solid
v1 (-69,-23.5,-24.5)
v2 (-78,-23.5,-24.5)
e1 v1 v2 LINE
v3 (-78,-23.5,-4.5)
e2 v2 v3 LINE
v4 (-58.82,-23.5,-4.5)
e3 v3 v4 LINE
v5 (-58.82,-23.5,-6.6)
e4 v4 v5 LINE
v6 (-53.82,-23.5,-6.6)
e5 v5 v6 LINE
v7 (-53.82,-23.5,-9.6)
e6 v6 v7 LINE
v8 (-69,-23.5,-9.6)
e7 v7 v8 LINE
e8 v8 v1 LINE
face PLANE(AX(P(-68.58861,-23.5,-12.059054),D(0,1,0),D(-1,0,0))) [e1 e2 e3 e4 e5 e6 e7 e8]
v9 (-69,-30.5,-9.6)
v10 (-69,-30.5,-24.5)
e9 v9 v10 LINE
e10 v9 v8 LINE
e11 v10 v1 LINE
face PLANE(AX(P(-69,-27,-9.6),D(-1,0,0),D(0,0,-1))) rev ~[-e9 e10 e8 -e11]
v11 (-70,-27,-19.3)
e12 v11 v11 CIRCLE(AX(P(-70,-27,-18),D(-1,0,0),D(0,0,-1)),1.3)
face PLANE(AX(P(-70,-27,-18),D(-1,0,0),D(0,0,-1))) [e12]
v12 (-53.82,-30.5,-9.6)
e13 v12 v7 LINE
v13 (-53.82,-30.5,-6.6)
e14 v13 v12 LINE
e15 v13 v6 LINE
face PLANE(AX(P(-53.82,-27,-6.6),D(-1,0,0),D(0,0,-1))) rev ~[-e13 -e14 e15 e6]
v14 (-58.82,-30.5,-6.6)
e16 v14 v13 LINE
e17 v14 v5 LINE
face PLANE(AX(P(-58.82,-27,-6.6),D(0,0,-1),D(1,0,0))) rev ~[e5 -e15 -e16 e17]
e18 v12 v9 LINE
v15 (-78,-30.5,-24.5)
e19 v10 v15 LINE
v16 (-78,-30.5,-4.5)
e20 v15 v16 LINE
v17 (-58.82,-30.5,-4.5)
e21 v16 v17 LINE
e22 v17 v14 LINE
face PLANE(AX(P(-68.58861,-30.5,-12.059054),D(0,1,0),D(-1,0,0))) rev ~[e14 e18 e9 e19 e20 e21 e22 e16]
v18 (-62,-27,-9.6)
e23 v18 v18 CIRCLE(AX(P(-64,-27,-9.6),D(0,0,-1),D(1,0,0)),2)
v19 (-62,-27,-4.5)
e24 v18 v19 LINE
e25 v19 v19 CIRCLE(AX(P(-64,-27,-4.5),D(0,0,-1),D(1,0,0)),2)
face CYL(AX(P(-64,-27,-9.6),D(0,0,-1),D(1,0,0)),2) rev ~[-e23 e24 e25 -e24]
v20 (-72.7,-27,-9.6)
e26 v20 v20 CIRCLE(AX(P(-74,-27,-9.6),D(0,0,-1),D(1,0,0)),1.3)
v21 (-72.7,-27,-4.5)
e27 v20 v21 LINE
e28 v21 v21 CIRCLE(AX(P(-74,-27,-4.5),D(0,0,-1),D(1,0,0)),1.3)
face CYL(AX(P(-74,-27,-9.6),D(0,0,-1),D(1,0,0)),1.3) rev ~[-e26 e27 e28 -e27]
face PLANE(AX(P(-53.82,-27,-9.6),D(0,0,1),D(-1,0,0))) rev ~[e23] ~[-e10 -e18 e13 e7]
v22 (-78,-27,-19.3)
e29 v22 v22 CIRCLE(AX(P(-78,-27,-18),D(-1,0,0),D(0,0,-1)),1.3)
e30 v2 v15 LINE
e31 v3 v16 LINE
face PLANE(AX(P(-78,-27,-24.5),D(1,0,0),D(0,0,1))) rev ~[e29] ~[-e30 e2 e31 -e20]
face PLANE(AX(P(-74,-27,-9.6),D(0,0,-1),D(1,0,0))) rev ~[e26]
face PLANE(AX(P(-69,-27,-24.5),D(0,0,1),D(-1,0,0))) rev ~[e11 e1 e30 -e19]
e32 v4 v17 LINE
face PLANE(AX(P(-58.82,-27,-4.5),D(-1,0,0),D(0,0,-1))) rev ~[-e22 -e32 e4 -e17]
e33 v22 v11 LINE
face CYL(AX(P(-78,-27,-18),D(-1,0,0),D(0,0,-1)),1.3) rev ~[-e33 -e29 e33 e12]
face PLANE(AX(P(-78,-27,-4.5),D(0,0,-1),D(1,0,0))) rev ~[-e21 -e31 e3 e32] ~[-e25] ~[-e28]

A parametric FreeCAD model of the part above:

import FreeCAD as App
import Part
import Sketcher

V = App.Vector
Q = App.Units.Quantity


def add_polygon(sketch, points):
    """Adds a closed chain of lines whose ends are joined by coincident constraints."""
    first, n = sketch.GeometryCount, len(points)
    for a, b in zip(points, points[1:] + points[:1]):
        sketch.addGeometry(Part.LineSegment(App.Vector(*a, 0), App.Vector(*b, 0)), False)
    for i in range(n):
        sketch.addConstraint(Sketcher.Constraint("Coincident", first + i, 2, first + (i + 1) % n, 1))

doc = App.newDocument("Part")
body = doc.addObject("PartDesign::Body", "Body")

sketch1 = body.newObject("Sketcher::SketchObject", "Sketch")
sketch1.AttachmentSupport = (doc.getObject("XZ_Plane"), [""])
sketch1.MapMode = "FlatFace"
add_polygon(sketch1, [(-58.8, -6.6), (-58.8, -4.5), (-78, -4.5), (-78, -24.5), (-69, -24.5), (-69, -9.6), (-53.8, -9.6), (-53.8, -6.6)])
sketch1.addConstraint([
    Sketcher.Constraint("Vertical", 0),
    Sketcher.Constraint("Horizontal", 1),
    Sketcher.Constraint("Vertical", 2),
    Sketcher.Constraint("Horizontal", 3),
    Sketcher.Constraint("Vertical", 4),
    Sketcher.Constraint("Horizontal", 5),
    Sketcher.Constraint("Vertical", 6),
    Sketcher.Constraint("Horizontal", 7),
    Sketcher.Constraint("DistanceX", 3, 1, 3, 2, Q("9 mm")),
    Sketcher.Constraint("DistanceX", 7, 2, 7, 1, Q("5 mm")),
    Sketcher.Constraint("DistanceY", 2, 2, 2, 1, Q("20 mm")),
    Sketcher.Constraint("DistanceY", 6, 1, 6, 2, Q("3 mm")),
    Sketcher.Constraint("DistanceY", 0, 1, 0, 2, Q("2.1 mm")),
    Sketcher.Constraint("DistanceX", 1, 2, -1, 1, Q("78 mm")),
    Sketcher.Constraint("DistanceX", 1, 2, 1, 1, Q("19.18 mm")),
    Sketcher.Constraint("DistanceY", 0, 2, -1, 1, Q("4.5 mm")),
])
pad1 = body.newObject("PartDesign::Pad", "Pad")
pad1.Profile = sketch1
pad1.Type = "TwoLengths"
pad1.Length = 3.5
pad1.Length2 = 3.5

sketch2 = body.newObject("Sketcher::SketchObject", "Sketch001")
sketch2.AttachmentSupport = (doc.getObject("XY_Plane"), [""])
sketch2.MapMode = "FlatFace"
sketch2.AttachmentOffset = App.Placement(V(0, 0, -9.6), App.Rotation())
sketch2.addGeometry([
    Part.Circle(V(-64, 0, 0), V(0, 0, 1), 2),
    Part.Circle(V(-74, 0, 0), V(0, 0, 1), 1.3),
], False)
sketch2.addConstraint([
    Sketcher.Constraint("PointOnObject", 0, 3, -1),
    Sketcher.Constraint("PointOnObject", 1, 3, -1),
    Sketcher.Constraint("Diameter", 0, Q("4 mm")),
    Sketcher.Constraint("Diameter", 1, Q("2.6 mm")),
    Sketcher.Constraint("DistanceX", 0, 3, -1, 1, Q("64 mm")),
    Sketcher.Constraint("DistanceX", 1, 3, -1, 1, Q("74 mm")),
])
pocket1 = body.newObject("PartDesign::Pocket", "Pocket")
pocket1.Profile = sketch2
pocket1.Length = 8
pocket1.Reversed = True

sketch3 = body.newObject("Sketcher::SketchObject", "Sketch002")
sketch3.AttachmentSupport = (doc.getObject("YZ_Plane"), [""])
sketch3.MapMode = "FlatFace"
sketch3.AttachmentOffset = App.Placement(V(0, 0, -78), App.Rotation())
sketch3.addGeometry(Part.Circle(V(0, -18, 0), V(0, 0, 1), 1.3), False)
sketch3.addConstraint([
    Sketcher.Constraint("PointOnObject", 0, 3, -2),
    Sketcher.Constraint("Diameter", 0, Q("2.6 mm")),
    Sketcher.Constraint("DistanceY", 0, 3, -1, 1, Q("18 mm")),
])
pocket2 = body.newObject("PartDesign::Pocket", "Pocket001")
pocket2.Profile = sketch3
pocket2.Length = 8
pocket2.Reversed = True
body2 = doc.addObject("PartDesign::Body", "Body001")
doc.recompute()

body.Placement = App.Placement(V(0, -27, 0), App.Rotation(V(0, 0, 1), 0))
boolean = body2.newObject("PartDesign::Boolean", "Boolean")
boolean.Type = "Fuse"
boolean.addObjects([body])

doc.recompute()
